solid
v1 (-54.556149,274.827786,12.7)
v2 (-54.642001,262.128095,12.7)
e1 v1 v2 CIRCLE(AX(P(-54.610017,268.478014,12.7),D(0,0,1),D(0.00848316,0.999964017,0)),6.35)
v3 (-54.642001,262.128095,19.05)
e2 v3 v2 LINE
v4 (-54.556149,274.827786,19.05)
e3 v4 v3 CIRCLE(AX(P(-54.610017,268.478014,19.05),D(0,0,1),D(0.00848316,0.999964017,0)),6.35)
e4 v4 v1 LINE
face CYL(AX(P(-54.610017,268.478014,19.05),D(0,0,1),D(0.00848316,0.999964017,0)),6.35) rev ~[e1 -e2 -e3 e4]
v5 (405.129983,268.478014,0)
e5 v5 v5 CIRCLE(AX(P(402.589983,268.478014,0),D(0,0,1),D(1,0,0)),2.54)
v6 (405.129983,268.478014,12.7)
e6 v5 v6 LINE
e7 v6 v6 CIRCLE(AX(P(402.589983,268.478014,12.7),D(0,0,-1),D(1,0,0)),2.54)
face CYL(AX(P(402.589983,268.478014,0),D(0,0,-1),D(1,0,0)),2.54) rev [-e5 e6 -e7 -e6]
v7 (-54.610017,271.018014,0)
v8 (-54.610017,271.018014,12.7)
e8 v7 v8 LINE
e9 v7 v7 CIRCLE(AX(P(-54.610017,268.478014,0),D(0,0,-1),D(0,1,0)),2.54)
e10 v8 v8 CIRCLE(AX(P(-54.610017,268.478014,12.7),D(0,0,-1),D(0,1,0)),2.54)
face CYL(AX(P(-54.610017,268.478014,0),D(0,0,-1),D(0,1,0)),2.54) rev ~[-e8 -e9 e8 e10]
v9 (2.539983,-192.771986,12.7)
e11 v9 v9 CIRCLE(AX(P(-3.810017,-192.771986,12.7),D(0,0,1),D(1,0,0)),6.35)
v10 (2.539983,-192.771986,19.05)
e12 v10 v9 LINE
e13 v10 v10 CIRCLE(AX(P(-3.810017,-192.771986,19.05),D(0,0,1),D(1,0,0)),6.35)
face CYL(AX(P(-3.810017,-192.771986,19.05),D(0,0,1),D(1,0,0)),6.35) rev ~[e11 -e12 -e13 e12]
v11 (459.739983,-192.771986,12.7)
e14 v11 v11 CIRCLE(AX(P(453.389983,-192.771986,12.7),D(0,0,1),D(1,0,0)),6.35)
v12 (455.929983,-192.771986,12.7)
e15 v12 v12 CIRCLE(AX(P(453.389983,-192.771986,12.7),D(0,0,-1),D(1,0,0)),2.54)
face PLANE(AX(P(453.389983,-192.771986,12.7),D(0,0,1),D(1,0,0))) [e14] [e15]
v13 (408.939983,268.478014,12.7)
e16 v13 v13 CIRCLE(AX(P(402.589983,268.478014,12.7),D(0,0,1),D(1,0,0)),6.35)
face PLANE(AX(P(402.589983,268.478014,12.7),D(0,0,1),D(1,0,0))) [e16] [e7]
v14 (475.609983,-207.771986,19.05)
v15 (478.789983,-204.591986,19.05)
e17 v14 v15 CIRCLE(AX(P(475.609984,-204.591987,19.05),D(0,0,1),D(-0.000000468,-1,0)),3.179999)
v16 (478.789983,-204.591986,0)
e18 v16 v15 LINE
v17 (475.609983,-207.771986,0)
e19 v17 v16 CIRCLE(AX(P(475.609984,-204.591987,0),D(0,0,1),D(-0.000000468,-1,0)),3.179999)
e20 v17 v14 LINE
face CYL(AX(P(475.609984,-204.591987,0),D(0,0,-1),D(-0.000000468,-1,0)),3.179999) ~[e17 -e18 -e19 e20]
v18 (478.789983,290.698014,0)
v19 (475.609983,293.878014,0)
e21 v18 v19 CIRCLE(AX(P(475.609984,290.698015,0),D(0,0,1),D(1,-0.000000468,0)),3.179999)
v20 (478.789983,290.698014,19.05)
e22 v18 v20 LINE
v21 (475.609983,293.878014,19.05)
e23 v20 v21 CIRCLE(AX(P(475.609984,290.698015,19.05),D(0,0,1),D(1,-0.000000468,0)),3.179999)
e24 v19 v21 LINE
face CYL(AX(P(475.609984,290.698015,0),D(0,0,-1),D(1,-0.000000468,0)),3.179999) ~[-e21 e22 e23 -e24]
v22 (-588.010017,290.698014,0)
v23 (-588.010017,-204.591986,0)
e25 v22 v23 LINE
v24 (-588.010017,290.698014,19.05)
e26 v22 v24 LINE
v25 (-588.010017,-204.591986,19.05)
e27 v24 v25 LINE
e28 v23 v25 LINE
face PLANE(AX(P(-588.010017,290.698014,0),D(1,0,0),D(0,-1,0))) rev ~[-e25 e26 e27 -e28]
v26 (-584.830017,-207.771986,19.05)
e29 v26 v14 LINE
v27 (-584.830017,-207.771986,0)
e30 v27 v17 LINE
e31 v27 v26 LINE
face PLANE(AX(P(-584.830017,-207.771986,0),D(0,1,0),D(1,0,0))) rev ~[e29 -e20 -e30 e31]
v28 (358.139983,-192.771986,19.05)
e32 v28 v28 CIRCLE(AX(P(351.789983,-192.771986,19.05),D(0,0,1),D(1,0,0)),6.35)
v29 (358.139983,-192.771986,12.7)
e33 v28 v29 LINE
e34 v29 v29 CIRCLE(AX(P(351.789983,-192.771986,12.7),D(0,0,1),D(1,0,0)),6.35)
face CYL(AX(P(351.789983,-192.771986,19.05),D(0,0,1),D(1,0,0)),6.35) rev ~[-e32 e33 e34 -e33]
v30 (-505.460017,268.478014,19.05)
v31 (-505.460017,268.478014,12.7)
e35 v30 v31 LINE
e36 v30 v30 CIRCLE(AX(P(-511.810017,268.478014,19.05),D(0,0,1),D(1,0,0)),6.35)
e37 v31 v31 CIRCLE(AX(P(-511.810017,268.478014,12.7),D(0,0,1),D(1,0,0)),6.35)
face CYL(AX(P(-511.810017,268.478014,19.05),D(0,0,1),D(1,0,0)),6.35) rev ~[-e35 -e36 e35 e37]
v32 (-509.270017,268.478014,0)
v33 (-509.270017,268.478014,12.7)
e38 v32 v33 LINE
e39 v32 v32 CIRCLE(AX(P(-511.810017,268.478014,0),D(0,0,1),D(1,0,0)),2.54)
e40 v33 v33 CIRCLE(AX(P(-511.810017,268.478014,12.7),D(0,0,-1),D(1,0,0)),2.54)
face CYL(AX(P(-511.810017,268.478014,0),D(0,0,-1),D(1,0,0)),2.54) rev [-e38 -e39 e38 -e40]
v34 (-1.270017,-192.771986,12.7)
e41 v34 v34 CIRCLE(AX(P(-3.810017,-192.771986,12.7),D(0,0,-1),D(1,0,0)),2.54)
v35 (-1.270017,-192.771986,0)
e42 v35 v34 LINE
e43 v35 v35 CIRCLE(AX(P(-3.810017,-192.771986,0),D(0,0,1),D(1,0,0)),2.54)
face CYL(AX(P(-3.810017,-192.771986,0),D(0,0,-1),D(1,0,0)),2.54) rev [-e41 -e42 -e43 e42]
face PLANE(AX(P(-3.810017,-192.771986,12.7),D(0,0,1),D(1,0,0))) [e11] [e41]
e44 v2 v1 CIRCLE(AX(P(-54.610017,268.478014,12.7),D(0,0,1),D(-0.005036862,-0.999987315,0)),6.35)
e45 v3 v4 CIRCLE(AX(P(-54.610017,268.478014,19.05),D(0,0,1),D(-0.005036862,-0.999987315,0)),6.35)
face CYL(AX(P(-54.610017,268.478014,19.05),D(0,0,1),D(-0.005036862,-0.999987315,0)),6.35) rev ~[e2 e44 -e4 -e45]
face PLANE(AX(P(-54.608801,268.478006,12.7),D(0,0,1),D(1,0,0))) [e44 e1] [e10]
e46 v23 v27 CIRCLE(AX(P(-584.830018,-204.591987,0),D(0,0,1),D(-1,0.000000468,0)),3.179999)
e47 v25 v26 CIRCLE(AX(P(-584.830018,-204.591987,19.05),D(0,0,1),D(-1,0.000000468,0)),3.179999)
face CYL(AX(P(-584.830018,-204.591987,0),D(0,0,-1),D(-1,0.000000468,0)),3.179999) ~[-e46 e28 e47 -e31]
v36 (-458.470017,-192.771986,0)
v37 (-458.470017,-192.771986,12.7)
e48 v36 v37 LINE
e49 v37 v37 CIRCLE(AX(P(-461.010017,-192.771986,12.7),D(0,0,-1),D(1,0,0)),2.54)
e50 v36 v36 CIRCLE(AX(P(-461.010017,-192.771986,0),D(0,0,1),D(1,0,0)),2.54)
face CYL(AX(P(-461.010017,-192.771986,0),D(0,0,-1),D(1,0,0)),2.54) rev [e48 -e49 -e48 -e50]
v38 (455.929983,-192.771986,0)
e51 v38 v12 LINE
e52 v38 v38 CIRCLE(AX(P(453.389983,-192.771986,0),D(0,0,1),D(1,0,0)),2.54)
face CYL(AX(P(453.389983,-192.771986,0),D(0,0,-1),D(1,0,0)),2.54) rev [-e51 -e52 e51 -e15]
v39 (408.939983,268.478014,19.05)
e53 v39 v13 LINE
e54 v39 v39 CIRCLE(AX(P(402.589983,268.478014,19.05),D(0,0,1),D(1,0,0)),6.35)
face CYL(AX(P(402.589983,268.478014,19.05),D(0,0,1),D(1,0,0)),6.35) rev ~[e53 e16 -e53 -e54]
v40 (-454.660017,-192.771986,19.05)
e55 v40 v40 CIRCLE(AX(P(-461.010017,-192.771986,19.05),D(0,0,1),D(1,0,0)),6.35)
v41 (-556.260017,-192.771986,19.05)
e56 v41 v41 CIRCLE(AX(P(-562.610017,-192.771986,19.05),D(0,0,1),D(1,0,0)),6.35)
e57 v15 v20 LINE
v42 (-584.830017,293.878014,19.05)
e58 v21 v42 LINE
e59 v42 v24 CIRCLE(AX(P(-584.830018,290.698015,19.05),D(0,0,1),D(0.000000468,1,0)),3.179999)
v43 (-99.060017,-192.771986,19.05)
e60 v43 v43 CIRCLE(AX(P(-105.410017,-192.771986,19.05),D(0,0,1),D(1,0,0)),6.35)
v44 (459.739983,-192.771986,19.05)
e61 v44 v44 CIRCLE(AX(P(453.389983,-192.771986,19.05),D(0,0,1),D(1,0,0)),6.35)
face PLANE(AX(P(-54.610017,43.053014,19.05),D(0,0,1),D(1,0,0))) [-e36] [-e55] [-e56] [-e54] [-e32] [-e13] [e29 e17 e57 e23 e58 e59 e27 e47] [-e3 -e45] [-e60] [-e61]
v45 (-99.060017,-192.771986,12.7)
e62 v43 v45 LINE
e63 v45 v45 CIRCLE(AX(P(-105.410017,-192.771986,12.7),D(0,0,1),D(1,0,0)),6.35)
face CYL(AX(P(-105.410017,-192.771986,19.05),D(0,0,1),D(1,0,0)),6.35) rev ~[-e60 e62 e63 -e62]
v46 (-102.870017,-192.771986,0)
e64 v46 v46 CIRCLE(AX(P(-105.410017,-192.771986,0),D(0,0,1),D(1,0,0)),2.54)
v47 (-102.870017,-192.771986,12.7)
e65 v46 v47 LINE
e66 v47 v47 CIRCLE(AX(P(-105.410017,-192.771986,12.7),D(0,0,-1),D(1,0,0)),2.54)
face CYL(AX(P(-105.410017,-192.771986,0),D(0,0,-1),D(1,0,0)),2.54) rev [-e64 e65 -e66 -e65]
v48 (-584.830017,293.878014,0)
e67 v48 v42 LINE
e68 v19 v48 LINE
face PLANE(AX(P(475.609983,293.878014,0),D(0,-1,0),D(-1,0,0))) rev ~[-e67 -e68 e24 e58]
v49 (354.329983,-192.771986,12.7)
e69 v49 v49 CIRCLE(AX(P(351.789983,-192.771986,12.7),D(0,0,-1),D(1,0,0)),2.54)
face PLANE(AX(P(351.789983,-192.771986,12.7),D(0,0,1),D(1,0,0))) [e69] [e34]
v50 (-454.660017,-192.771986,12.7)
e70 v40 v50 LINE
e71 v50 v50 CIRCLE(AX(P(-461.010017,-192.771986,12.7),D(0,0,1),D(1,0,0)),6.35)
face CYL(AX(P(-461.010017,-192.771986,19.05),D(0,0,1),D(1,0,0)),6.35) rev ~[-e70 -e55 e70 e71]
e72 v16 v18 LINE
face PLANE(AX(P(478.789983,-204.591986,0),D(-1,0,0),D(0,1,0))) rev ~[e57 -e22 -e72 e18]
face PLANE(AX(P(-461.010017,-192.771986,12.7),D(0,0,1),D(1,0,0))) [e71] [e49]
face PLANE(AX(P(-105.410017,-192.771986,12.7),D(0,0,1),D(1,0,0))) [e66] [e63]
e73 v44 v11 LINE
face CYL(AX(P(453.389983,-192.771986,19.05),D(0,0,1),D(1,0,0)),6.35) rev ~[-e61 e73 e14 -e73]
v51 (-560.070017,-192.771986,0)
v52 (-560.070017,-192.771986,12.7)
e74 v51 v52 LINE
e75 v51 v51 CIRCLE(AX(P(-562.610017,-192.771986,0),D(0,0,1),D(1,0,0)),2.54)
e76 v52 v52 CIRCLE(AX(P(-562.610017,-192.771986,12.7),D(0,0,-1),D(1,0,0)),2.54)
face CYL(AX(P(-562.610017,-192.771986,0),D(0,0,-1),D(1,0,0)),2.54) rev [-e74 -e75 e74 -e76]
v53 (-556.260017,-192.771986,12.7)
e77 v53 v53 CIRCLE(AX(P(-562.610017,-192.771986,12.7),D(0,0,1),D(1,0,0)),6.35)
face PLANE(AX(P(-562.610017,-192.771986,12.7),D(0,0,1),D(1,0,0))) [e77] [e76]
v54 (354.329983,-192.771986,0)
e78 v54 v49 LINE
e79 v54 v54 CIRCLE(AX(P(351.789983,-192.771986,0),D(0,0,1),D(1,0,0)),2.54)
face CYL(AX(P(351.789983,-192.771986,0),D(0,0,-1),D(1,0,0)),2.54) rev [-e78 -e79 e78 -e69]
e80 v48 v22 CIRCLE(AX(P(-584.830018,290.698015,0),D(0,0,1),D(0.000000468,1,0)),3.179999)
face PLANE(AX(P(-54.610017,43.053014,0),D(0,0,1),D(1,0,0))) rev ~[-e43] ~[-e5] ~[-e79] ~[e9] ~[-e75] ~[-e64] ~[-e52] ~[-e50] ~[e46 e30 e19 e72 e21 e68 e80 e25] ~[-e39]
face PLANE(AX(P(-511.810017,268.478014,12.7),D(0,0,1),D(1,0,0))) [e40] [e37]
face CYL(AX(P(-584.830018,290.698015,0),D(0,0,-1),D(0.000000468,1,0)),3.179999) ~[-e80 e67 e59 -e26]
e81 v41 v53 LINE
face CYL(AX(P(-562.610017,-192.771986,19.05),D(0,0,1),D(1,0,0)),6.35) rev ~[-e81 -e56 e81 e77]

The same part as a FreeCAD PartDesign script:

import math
import FreeCAD as App
import Part
import Sketcher
from FreeCAD import Vector
Q = App.Units.Quantity

doc = App.newDocument("Part")
params = doc.addObject("Spreadsheet::Sheet", "Params")
for row, (alias, value) in enumerate([
    ("sketch1_diameter", "0.2 in"),
    ("pad1_length", "0.75 in"),
    ("sketch2_diameter", "0.5 in"),
    ("pocket1_length", "0.25 in"),
], start=1):
    params.set(f"A{row}", alias)
    params.set(f"B{row}", "=" + value)
    params.setAlias(f"B{row}", alias)

body = doc.addObject("PartDesign::Body", "Body")

sketch1 = body.newObject("Sketcher::SketchObject", "Sketch")
sketch1.AttachmentSupport = (doc.getObject("XY_Plane"), [""])
sketch1.MapMode = "FlatFace"
sketch1.addGeometry([
    Part.ArcOfCircle(Part.Circle(Vector(-584.830018, 290.698015, 0), Vector(0, 0, 1), 3.179999), math.radians(89.999973), math.radians(180.000027)),
    Part.LineSegment(Vector(-588.010017, 290.698014, 0), Vector(-588.010017, -204.591986, 0)),
    Part.ArcOfCircle(Part.Circle(Vector(-584.830018, -204.591987, 0), Vector(0, 0, 1), 3.179999), math.radians(179.999973), math.radians(270.000027)),
    Part.LineSegment(Vector(-584.830017, -207.771986, 0), Vector(475.609983, -207.771986, 0)),
    Part.ArcOfCircle(Part.Circle(Vector(475.609984, -204.591987, 0), Vector(0, 0, 1), 3.179999), math.radians(-90.000027), math.radians(0.000027)),
    Part.LineSegment(Vector(478.789983, -204.591986, 0), Vector(478.789983, 290.698014, 0)),
    Part.ArcOfCircle(Part.Circle(Vector(475.609984, 290.698015, 0), Vector(0, 0, 1), 3.179999), math.radians(-0.000027), math.radians(90.000027)),
    Part.LineSegment(Vector(475.609983, 293.878014, 0), Vector(-584.830017, 293.878014, 0)),
    Part.Circle(Vector(-562.610017, -192.771986, 0), Vector(0, 0, 1), 2.54),
    Part.Circle(Vector(-461.010017, -192.771986, 0), Vector(0, 0, 1), 2.54),
    Part.Circle(Vector(-105.410017, -192.771986, 0), Vector(0, 0, 1), 2.54),
    Part.Circle(Vector(-3.810017, -192.771986, 0), Vector(0, 0, 1), 2.54),
    Part.Circle(Vector(351.789983, -192.771986, 0), Vector(0, 0, 1), 2.54),
    Part.Circle(Vector(453.389983, -192.771986, 0), Vector(0, 0, 1), 2.54),
    Part.Circle(Vector(-511.810017, 268.478014, 0), Vector(0, 0, 1), 2.54),
    Part.Circle(Vector(-54.610017, 268.478014, 0), Vector(0, 0, 1), 2.54),
    Part.Circle(Vector(402.589983, 268.478014, 0), Vector(0, 0, 1), 2.54),
], False)
sketch1.addConstraint([
    Sketcher.Constraint("Tangent", 0, 2, 1, 1),
    Sketcher.Constraint("Tangent", 1, 2, 2, 1),
    Sketcher.Constraint("Tangent", 2, 2, 3, 1),
    Sketcher.Constraint("Tangent", 3, 2, 4, 1),
    Sketcher.Constraint("Tangent", 4, 2, 5, 1),
    Sketcher.Constraint("Tangent", 5, 2, 6, 1),
    Sketcher.Constraint("Tangent", 6, 2, 7, 1),
    Sketcher.Constraint("Tangent", 7, 2, 0, 1),
    Sketcher.Constraint("Vertical", 1),
    Sketcher.Constraint("Horizontal", 3),
    Sketcher.Constraint("Vertical", 5),
    Sketcher.Constraint("Horizontal", 7),
    Sketcher.Constraint("Equal", 0, 2),
    Sketcher.Constraint("Equal", 2, 4),
    Sketcher.Constraint("Equal", 4, 6),
    Sketcher.Constraint("Equal", 8, 9),
    Sketcher.Constraint("Equal", 9, 10),
    Sketcher.Constraint("Equal", 10, 11),
    Sketcher.Constraint("Equal", 11, 12),
    Sketcher.Constraint("Equal", 12, 13),
    Sketcher.Constraint("Equal", 13, 14),
    Sketcher.Constraint("Equal", 14, 15),
    Sketcher.Constraint("Equal", 15, 16),
    Sketcher.Constraint("Horizontal", 8, 3, 9, 3),
    Sketcher.Constraint("Horizontal", 9, 3, 10, 3),
    Sketcher.Constraint("Horizontal", 10, 3, 11, 3),
    Sketcher.Constraint("Horizontal", 11, 3, 12, 3),
    Sketcher.Constraint("Horizontal", 12, 3, 13, 3),
    Sketcher.Constraint("Horizontal", 14, 3, 15, 3),
    Sketcher.Constraint("Horizontal", 15, 3, 16, 3),
    Sketcher.Constraint("Diameter", 8, Q("0.2 in")),
    Sketcher.Constraint("DistanceX", 8, 3, 9, 3, Q("4 in")),
    Sketcher.Constraint("DistanceX", 9, 3, 10, 3, Q("14 in")),
    Sketcher.Constraint("DistanceX", 10, 3, 11, 3, Q("4 in")),
    Sketcher.Constraint("DistanceX", 11, 3, 12, 3, Q("14 in")),
    Sketcher.Constraint("DistanceX", 12, 3, 13, 3, Q("4 in")),
    Sketcher.Constraint("DistanceX", 8, 3, 14, 3, Q("2 in")),
    Sketcher.Constraint("DistanceX", 14, 3, 15, 3, Q("18 in")),
    Sketcher.Constraint("DistanceX", 15, 3, 16, 3, Q("18 in")),
    Sketcher.Constraint("DistanceX", 0, 2, 14, 3, Q("3 in")),
    Sketcher.Constraint("DistanceX", 13, 3, 4, 2, Q("1 in")),
    Sketcher.Constraint("DistanceY", 16, 3, 6, 2, Q("1 in")),
    Sketcher.Constraint("Radius", 0, 3.179999),
    Sketcher.Constraint("DistanceY", 3, 2, 16, 3, Q("18.75 in")),
    Sketcher.Constraint("DistanceY", 2, 3, 8, 3, 11.820001),
    Sketcher.Constraint("DistanceX", 0, 3, -1, 1, 584.830018),
    Sketcher.Constraint("DistanceY", -1, 1, 0, 3, 290.698015),
])
sketch1.setExpression("Constraints[30]", "Params.sketch1_diameter")
pad1 = body.newObject("PartDesign::Pad", "Pad")
pad1.Profile = sketch1
pad1.setExpression("Length", "Params.pad1_length")

sketch2 = body.newObject("Sketcher::SketchObject", "Sketch001")
sketch2.AttachmentSupport = (doc.getObject("XY_Plane"), [""])
sketch2.MapMode = "FlatFace"
sketch2.AttachmentOffset = App.Placement(Vector(0, 0, 0.75 * 25.4), App.Rotation())
sketch2.addGeometry([
    Part.Circle(Vector(-511.810017, 268.478014, 0), Vector(0, 0, 1), 6.35),
    Part.ArcOfCircle(Part.Circle(Vector(-54.610017, 268.478014, 0), Vector(0, 0, 1), 6.35), math.radians(89.513945), math.radians(269.711409)),
    Part.ArcOfCircle(Part.Circle(Vector(-54.610017, 268.478014, 0), Vector(0, 0, 1), 6.35), math.radians(-90.288592), math.radians(89.513946)),
    Part.Circle(Vector(402.589983, 268.478014, 0), Vector(0, 0, 1), 6.35),
    Part.Circle(Vector(453.389983, -192.771986, 0), Vector(0, 0, 1), 6.35),
    Part.Circle(Vector(351.789983, -192.771986, 0), Vector(0, 0, 1), 6.35),
    Part.Circle(Vector(-3.810017, -192.771986, 0), Vector(0, 0, 1), 6.35),
    Part.Circle(Vector(-105.410017, -192.771986, 0), Vector(0, 0, 1), 6.35),
    Part.Circle(Vector(-461.010017, -192.771986, 0), Vector(0, 0, 1), 6.35),
    Part.Circle(Vector(-562.610017, -192.771986, 0), Vector(0, 0, 1), 6.35),
], False)
sketch2.addConstraint([
    Sketcher.Constraint("Tangent", 1, 1, 2, 2),
    Sketcher.Constraint("Coincident", 2, 1, 1, 2),
    Sketcher.Constraint("Equal", 0, 1),
    Sketcher.Constraint("Equal", 2, 3),
    Sketcher.Constraint("Equal", 3, 4),
    Sketcher.Constraint("Equal", 4, 5),
    Sketcher.Constraint("Equal", 5, 6),
    Sketcher.Constraint("Equal", 6, 7),
    Sketcher.Constraint("Equal", 7, 8),
    Sketcher.Constraint("Equal", 8, 9),
    Sketcher.Constraint("Horizontal", 0, 3, 1, 3),
    Sketcher.Constraint("Horizontal", 2, 3, 3, 3),
    Sketcher.Constraint("Horizontal", 4, 3, 5, 3),
    Sketcher.Constraint("Horizontal", 5, 3, 6, 3),
    Sketcher.Constraint("Horizontal", 6, 3, 7, 3),
    Sketcher.Constraint("Horizontal", 7, 3, 8, 3),
    Sketcher.Constraint("Horizontal", 8, 3, 9, 3),
    Sketcher.Constraint("Diameter", 0, Q("0.5 in")),
    Sketcher.Constraint("DistanceX", 0, 3, 1, 3, Q("18 in")),
    Sketcher.Constraint("DistanceX", 2, 3, 3, 3, Q("18 in")),
    Sketcher.Constraint("DistanceX", 3, 3, 4, 3, Q("2 in")),
    Sketcher.Constraint("DistanceX", 5, 3, 4, 3, Q("4 in")),
    Sketcher.Constraint("DistanceX", 6, 3, 5, 3, Q("14 in")),
    Sketcher.Constraint("DistanceX", 7, 3, 6, 3, Q("4 in")),
    Sketcher.Constraint("DistanceX", 8, 3, 7, 3, Q("14 in")),
    Sketcher.Constraint("DistanceX", 9, 3, 8, 3, Q("4 in")),
    Sketcher.Constraint("DistanceX", 2, 1, -1, 1, 54.642001),
    Sketcher.Constraint("DistanceY", 4, 3, 3, 3, 461.25),
    Sketcher.Constraint("DistanceX", 1, 1, -1, 1, 54.556149),
    Sketcher.Constraint("DistanceX", 1, 3, 1, 1, 0.053868),
    Sketcher.Constraint("DistanceY", -1, 1, 0, 3, 268.478014),
])
sketch2.setExpression("Constraints[17]", "Params.sketch2_diameter")
pocket1 = body.newObject("PartDesign::Pocket", "Pocket")
pocket1.Profile = sketch2
pocket1.setExpression("Length", "Params.pocket1_length")

doc.recompute()
